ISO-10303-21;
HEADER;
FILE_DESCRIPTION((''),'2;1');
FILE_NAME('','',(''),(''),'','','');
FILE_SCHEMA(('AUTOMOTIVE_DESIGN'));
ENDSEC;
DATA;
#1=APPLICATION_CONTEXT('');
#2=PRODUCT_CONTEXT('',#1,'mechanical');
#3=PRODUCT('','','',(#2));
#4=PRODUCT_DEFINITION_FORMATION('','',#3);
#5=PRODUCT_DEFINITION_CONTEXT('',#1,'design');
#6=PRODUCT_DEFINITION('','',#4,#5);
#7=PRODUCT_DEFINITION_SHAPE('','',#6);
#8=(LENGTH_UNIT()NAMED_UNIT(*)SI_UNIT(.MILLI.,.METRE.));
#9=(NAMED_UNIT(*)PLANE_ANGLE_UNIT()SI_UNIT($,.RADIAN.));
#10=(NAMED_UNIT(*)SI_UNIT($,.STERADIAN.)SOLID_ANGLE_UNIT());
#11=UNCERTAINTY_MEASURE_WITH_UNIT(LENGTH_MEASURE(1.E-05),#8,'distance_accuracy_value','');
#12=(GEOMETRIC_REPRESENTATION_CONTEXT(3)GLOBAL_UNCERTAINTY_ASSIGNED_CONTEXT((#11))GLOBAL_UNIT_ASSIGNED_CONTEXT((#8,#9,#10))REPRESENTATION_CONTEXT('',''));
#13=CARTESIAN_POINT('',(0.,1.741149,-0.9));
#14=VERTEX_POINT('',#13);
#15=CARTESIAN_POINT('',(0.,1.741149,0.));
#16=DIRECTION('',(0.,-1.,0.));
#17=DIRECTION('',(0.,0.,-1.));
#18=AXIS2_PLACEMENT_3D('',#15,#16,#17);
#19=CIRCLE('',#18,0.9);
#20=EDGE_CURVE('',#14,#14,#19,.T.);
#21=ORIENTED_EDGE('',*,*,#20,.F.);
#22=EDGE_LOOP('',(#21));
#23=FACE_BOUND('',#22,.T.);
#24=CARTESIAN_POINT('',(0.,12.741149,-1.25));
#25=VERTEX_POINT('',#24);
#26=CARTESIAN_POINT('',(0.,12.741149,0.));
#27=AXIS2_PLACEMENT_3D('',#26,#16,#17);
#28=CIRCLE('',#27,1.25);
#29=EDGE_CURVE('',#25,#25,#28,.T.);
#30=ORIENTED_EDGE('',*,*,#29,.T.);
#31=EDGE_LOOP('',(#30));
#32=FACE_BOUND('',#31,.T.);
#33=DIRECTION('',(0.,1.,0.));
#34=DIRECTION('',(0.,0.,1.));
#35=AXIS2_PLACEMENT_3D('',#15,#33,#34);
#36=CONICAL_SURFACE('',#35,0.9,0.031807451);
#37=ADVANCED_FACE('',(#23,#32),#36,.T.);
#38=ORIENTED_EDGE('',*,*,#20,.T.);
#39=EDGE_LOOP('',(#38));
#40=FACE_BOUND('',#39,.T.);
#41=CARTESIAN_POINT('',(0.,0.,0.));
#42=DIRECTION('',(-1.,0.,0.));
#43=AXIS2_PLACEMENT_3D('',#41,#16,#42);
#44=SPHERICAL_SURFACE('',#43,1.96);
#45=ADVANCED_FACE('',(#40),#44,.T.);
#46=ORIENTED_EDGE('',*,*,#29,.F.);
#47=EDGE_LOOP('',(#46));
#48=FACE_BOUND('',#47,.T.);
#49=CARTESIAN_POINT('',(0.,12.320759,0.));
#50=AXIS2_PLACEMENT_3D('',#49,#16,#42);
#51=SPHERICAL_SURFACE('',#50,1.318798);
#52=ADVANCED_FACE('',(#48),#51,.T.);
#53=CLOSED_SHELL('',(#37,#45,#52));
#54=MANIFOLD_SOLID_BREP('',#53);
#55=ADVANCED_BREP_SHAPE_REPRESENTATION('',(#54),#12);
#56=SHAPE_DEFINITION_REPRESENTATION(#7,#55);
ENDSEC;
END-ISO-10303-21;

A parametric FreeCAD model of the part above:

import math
import FreeCAD as App
import Part
import Sketcher

doc = App.newDocument("Part")
body = doc.addObject("PartDesign::Body", "Body")

sketch1 = doc.addObject("Sketcher::SketchObject", "Sketch")
body.addObject(sketch1)
sketch1.AttachmentSupport = (doc.XY_Plane, [""])
sketch1.MapMode = "FlatFace"
sketch1.addGeometry([
    Part.LineSegment(App.Vector(-1.2, 12.7, 0), App.Vector(-0.9, 1.7, 0)),
    Part.ArcOfCircle(Part.Circle(App.Vector(0, 0, 0), App.Vector(0, 0, 1), 2), math.radians(117), math.radians(270)),
    Part.LineSegment(App.Vector(0, -2, 0), App.Vector(0, 13.6, 0)),
    Part.ArcOfCircle(Part.Circle(App.Vector(0, 12.3, 0), App.Vector(0, 0, 1), 1.3), math.radians(90), math.radians(161)),
], False)
sketch1.addConstraint([
    Sketcher.Constraint("Coincident", 0, 2, 1, 1),
    Sketcher.Constraint("Coincident", 1, 2, 2, 1),
    Sketcher.Constraint("Coincident", 2, 2, 3, 1),
    Sketcher.Constraint("Coincident", 3, 2, 0, 1),
    Sketcher.Constraint("Vertical", 2),
    Sketcher.Constraint("Coincident", 1, 3, -1, 1),
    Sketcher.Constraint("PointOnObject", 3, 3, -2),
    Sketcher.Constraint("PointOnObject", 1, 2, -2),
    Sketcher.Constraint("Radius", 1, 1.96),
    Sketcher.Constraint("DistanceY", 0, 2, 3, 2, 11.0),
    Sketcher.Constraint("DistanceX", 0, 2, -1, 1, 0.9),
    Sketcher.Constraint("DistanceX", 3, 2, -1, 1, 1.25),
    Sketcher.Constraint("Radius", 3, 1.318798),
])
revolution = doc.addObject("PartDesign::Revolution", "Revolution")
body.addObject(revolution)
revolution.Profile = sketch1
revolution.ReferenceAxis = (sketch1, ["V_Axis"])
revolution.Angle = 360

doc.recompute()
